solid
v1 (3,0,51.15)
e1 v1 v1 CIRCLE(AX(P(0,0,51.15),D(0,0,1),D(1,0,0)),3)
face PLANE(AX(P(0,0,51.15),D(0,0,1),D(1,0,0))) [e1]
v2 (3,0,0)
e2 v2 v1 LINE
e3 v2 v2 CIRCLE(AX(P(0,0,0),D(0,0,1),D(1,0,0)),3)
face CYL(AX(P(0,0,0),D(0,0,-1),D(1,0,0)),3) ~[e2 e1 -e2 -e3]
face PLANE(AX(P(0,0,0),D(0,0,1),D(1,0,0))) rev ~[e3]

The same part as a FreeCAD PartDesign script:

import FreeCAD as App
import Part
import Sketcher
from FreeCAD import Vector

doc = App.newDocument("Part")
body = doc.addObject("PartDesign::Body", "Body")

# Sketch on XY plane
sketch1 = body.newObject("Sketcher::SketchObject", "Sketch")
sketch1.AttachmentSupport = (doc.getObject("XY_Plane"), [""])
sketch1.MapMode = "FlatFace"
sketch1.addGeometry(Part.Circle(Vector(0, 0, 0), Vector(0, 0, 1), 3), False)
sketch1.addConstraint([
    Sketcher.Constraint("Coincident", 0, 3, -1, 1),
    Sketcher.Constraint("Diameter", 0, 6.0),
])
pad1 = body.newObject("PartDesign::Pad", "Pad")
pad1.Profile = sketch1
pad1.Length = 51.15

doc.recompute()
